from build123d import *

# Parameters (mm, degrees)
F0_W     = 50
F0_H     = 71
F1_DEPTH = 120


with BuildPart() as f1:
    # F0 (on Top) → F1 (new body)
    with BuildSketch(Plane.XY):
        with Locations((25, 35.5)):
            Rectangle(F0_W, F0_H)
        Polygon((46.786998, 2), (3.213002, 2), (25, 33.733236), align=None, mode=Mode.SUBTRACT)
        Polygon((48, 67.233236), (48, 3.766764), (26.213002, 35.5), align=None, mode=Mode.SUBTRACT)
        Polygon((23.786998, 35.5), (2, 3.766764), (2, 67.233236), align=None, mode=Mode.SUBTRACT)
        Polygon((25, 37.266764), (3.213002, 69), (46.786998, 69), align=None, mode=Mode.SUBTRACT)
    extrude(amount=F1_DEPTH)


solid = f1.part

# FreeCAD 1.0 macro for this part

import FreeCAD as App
import Part
import Sketcher
Q = App.Units.Quantity

doc = App.newDocument("Part")
body = doc.addObject("PartDesign::Body", "Body")

# Sketch on XY plane
sketch1 = body.newObject("Sketcher::SketchObject", "Sketch")
sketch1.AttachmentSupport = (doc.getObject("XY_Plane"), [""])
sketch1.MapMode = "FlatFace"
sketch1.addGeometry([
    Part.LineSegment(App.Vector(0, 71, 0), App.Vector(0, 0, 0)),  # 0
    Part.LineSegment(App.Vector(0, 0, 0), App.Vector(50, 0, 0)),  # 1
    Part.LineSegment(App.Vector(50, 0, 0), App.Vector(50, 71, 0)),  # 2
    Part.LineSegment(App.Vector(50, 71, 0), App.Vector(0, 71, 0)),  # 3
    Part.LineSegment(App.Vector(25, 34, 0), App.Vector(47, 2, 0)),  # 4
    Part.LineSegment(App.Vector(47, 2, 0), App.Vector(3, 2, 0)),  # 5
    Part.LineSegment(App.Vector(3, 2, 0), App.Vector(25, 34, 0)),  # 6
    Part.LineSegment(App.Vector(2, 67, 0), App.Vector(24, 36, 0)),  # 7
    Part.LineSegment(App.Vector(24, 36, 0), App.Vector(2, 4, 0)),  # 8
    Part.LineSegment(App.Vector(2, 4, 0), App.Vector(2, 67, 0)),  # 9
    Part.LineSegment(App.Vector(47, 69, 0), App.Vector(25, 37, 0)),  # 10
    Part.LineSegment(App.Vector(25, 37, 0), App.Vector(3, 69, 0)),  # 11
    Part.LineSegment(App.Vector(3, 69, 0), App.Vector(47, 69, 0)),  # 12
    Part.LineSegment(App.Vector(26, 36, 0), App.Vector(48, 67, 0)),  # 13
    Part.LineSegment(App.Vector(48, 67, 0), App.Vector(48, 4, 0)),  # 14
    Part.LineSegment(App.Vector(48, 4, 0), App.Vector(26, 36, 0)),  # 15
], False)
sketch1.addConstraint([
    Sketcher.Constraint("Coincident", 0, 2, 1, 1),
    Sketcher.Constraint("Coincident", 1, 2, 2, 1),
    Sketcher.Constraint("Coincident", 2, 2, 3, 1),
    Sketcher.Constraint("Coincident", 3, 2, 0, 1),
    Sketcher.Constraint("Coincident", 4, 2, 5, 1),
    Sketcher.Constraint("Coincident", 5, 2, 6, 1),
    Sketcher.Constraint("Coincident", 6, 2, 4, 1),
    Sketcher.Constraint("Coincident", 7, 2, 8, 1),
    Sketcher.Constraint("Coincident", 8, 2, 9, 1),
    Sketcher.Constraint("Coincident", 9, 2, 7, 1),
    Sketcher.Constraint("Coincident", 10, 2, 11, 1),
    Sketcher.Constraint("Coincident", 11, 2, 12, 1),
    Sketcher.Constraint("Coincident", 12, 2, 10, 1),
    Sketcher.Constraint("Coincident", 13, 2, 14, 1),
    Sketcher.Constraint("Coincident", 14, 2, 15, 1),
    Sketcher.Constraint("Coincident", 15, 2, 13, 1),
    Sketcher.Constraint("Vertical", 0),
    Sketcher.Constraint("Horizontal", 1),
    Sketcher.Constraint("Vertical", 2),
    Sketcher.Constraint("Horizontal", 3),
    Sketcher.Constraint("Horizontal", 5),
    Sketcher.Constraint("Vertical", 9),
    Sketcher.Constraint("Horizontal", 12),
    Sketcher.Constraint("Vertical", 14),
    Sketcher.Constraint("Coincident", 0, 2, -1, 1),
    Sketcher.Constraint("Parallel", 4, 7),
    Sketcher.Constraint("Parallel", 6, 8),
    Sketcher.Constraint("Parallel", 8, 10),
    Sketcher.Constraint("Parallel", 7, 11),
    Sketcher.Constraint("Parallel", 10, 13),
    Sketcher.Constraint("Parallel", 11, 15),
    Sketcher.Constraint("Horizontal", 9, 2, 13, 2),
    Sketcher.Constraint("Horizontal", 8, 2, 14, 2),
    Sketcher.Constraint("Horizontal", 7, 2, 15, 2),
    Sketcher.Constraint("Vertical", 6, 2, 10, 2),
    Sketcher.Constraint("Vertical", 5, 2, 11, 2),
    Sketcher.Constraint("Equal", 6, 7),
    Sketcher.Constraint("DistanceX", 1, 1, 1, 2, Q("50 mm")),
    Sketcher.Constraint("DistanceY", 0, 2, 0, 1, Q("71 mm")),
    Sketcher.Constraint("DistanceY", -1, 1, 4, 2, Q("2 mm")),
    Sketcher.Constraint("DistanceX", -1, 1, 6, 2, Q("25 mm")),
    Sketcher.Constraint("DistanceX", -1, 1, 8, 2, Q("2 mm")),
    Sketcher.Constraint("DistanceY", -1, 1, 11, 2, Q("69 mm")),
    Sketcher.Constraint("DistanceX", -1, 1, 13, 2, Q("48 mm")),
    Sketcher.Constraint("DistanceY", -1, 1, 7, 2, Q("35.5 mm")),
    Sketcher.Constraint("DistanceX", -1, 1, 5, 2, Q("3.213002 mm")),
    Sketcher.Constraint("DistanceY", 9, 1, 9, 2, Q("63.466472 mm")),
])
pad1 = body.newObject("PartDesign::Pad", "Pad")
pad1.Profile = sketch1
pad1.Length = 120

doc.recompute()
